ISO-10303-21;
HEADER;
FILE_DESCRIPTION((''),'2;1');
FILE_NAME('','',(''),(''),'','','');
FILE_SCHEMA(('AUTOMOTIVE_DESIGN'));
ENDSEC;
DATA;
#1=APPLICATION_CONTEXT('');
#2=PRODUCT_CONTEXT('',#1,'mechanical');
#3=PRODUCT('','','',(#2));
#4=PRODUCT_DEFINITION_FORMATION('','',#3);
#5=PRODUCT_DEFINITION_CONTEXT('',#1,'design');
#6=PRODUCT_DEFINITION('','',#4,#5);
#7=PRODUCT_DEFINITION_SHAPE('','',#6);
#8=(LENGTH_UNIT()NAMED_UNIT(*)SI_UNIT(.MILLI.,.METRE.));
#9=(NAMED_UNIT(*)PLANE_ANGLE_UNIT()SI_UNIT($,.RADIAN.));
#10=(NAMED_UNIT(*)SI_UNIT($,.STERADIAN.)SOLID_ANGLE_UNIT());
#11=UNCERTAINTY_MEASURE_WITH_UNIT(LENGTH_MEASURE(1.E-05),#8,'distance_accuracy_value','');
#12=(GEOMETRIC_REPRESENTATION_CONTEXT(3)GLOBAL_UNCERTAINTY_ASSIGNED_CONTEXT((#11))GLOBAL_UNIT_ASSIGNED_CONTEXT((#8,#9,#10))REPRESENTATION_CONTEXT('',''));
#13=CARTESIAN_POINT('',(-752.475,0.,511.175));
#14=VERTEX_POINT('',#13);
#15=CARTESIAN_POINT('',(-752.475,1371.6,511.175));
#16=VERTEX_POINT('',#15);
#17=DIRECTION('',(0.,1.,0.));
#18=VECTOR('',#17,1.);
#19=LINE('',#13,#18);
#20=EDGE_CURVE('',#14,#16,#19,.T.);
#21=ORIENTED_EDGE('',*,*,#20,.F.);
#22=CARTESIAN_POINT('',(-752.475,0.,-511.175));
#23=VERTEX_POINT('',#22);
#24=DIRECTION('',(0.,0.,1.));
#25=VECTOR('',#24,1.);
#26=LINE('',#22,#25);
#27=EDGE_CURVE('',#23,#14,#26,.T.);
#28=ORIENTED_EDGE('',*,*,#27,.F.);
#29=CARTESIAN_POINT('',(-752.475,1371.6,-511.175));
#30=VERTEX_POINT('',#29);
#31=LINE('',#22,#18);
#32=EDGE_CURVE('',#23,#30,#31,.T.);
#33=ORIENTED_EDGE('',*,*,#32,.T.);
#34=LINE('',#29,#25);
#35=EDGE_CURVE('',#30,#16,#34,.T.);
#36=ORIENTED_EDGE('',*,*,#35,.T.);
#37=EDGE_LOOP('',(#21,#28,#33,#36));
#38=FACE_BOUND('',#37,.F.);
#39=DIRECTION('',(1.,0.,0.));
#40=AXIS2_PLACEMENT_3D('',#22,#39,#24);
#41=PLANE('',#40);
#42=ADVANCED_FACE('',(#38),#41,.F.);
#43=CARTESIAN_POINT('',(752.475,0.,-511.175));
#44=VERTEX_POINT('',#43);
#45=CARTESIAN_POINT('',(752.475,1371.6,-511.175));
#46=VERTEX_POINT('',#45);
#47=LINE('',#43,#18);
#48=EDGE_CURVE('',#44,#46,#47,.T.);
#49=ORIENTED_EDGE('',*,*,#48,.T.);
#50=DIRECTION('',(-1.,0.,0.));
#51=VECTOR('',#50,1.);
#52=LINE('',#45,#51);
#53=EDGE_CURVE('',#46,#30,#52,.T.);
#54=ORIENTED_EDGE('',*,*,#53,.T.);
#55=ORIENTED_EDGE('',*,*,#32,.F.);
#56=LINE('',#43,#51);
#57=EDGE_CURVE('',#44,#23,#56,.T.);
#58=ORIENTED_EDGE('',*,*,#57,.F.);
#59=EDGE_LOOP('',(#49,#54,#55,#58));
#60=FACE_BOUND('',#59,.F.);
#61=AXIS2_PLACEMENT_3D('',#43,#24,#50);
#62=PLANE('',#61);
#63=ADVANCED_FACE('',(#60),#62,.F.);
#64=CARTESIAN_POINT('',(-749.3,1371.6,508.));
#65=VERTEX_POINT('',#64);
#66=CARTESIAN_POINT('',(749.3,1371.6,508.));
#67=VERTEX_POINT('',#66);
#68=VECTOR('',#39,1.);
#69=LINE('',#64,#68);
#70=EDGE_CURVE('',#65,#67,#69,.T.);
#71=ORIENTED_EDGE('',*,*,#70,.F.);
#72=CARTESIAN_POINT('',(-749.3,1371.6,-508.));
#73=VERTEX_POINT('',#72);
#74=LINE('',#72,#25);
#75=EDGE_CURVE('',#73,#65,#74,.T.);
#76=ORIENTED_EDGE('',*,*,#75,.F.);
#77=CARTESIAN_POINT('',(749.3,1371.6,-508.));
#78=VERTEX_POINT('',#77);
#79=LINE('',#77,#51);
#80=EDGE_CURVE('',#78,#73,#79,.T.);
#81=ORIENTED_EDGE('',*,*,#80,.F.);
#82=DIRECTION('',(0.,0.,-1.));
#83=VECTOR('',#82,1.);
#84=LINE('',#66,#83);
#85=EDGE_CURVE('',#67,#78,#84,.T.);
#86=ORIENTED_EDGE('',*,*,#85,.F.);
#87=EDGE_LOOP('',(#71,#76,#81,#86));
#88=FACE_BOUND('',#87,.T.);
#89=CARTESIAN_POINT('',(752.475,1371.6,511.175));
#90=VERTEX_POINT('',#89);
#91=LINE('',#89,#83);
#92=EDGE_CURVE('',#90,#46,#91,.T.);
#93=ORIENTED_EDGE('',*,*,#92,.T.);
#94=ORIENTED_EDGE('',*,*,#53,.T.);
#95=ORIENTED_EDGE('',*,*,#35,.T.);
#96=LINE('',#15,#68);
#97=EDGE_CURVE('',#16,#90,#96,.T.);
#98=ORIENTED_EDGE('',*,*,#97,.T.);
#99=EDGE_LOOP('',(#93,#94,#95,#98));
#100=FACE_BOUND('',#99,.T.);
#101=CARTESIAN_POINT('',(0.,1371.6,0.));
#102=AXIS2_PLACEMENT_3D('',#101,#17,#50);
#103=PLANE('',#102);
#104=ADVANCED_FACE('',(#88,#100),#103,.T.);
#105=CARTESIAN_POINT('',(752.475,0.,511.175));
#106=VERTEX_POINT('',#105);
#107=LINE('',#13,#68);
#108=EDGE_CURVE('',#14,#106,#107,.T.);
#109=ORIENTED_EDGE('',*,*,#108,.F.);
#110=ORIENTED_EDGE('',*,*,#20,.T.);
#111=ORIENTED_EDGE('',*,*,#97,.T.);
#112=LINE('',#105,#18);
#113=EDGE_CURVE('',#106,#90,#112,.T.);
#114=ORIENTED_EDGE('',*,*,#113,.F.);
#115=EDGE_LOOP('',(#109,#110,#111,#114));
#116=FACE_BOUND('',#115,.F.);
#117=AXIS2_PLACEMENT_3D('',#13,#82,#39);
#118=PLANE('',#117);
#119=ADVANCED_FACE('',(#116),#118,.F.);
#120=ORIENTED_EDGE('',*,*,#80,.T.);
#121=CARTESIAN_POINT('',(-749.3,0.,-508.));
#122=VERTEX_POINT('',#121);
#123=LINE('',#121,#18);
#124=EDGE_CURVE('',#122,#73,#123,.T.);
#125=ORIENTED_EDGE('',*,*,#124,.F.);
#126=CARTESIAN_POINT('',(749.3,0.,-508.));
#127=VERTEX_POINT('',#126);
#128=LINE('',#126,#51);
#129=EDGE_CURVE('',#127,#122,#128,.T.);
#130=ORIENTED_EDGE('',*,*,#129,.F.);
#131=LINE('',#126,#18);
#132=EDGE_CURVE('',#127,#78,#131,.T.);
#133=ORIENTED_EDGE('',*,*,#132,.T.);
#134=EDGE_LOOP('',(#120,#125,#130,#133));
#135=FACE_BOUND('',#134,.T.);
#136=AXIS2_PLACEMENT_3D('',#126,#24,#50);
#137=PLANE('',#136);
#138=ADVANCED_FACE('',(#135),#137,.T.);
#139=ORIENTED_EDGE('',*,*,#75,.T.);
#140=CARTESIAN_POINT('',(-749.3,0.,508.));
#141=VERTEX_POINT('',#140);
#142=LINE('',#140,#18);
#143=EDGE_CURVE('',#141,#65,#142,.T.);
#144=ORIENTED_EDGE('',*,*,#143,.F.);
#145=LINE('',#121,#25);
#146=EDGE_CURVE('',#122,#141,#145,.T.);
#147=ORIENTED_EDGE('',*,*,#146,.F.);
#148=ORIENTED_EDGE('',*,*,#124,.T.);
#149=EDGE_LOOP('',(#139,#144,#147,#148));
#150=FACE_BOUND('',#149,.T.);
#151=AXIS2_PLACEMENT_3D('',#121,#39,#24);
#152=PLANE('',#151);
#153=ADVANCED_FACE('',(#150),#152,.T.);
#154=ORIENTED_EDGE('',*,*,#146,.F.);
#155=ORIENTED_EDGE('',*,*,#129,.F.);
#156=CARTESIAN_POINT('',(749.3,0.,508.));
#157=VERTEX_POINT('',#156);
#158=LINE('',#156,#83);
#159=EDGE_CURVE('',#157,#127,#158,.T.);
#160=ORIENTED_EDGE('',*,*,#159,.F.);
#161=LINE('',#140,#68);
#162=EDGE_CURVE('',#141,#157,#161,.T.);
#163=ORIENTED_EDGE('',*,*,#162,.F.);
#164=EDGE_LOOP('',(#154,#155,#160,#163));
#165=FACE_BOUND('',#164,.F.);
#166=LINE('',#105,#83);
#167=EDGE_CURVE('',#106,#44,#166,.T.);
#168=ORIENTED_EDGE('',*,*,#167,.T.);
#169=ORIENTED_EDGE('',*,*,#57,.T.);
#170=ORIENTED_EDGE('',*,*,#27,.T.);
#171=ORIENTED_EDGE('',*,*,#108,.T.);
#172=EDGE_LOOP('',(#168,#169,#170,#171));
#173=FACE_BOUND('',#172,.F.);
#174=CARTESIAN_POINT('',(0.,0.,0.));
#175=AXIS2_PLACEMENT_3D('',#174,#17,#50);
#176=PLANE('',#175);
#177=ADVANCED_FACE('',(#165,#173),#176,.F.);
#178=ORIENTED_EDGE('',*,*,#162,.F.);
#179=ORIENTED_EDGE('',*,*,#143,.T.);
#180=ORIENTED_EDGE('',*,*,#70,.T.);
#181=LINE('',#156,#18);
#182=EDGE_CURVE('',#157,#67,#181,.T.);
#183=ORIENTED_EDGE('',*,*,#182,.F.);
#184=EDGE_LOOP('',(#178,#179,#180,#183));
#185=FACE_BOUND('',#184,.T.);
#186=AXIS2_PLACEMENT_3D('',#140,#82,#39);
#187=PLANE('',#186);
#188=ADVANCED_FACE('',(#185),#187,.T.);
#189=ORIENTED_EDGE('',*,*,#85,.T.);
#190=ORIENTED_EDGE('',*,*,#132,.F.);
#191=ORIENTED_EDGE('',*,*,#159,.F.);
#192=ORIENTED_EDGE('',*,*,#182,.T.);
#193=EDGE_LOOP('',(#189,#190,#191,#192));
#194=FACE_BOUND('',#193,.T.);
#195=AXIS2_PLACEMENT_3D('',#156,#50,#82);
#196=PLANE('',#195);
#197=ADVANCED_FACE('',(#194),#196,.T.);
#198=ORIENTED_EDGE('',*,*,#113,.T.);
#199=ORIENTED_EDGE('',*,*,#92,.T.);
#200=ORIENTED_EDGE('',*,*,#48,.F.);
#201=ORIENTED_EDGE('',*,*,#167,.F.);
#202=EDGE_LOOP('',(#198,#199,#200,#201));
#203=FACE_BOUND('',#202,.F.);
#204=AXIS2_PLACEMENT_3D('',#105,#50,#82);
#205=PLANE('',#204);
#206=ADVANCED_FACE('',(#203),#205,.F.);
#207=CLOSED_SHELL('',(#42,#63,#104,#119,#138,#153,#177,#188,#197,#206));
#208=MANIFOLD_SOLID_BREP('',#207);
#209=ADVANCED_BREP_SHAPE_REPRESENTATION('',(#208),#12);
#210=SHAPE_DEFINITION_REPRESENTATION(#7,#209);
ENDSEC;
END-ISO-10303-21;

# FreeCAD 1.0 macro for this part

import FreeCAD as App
import Part
import Sketcher
Q = App.Units.Quantity


def add_polygon(sketch, points):
    """Adds a closed chain of lines whose ends are joined by coincident constraints."""
    first, n = sketch.GeometryCount, len(points)
    for a, b in zip(points, points[1:] + points[:1]):
        sketch.addGeometry(Part.LineSegment(App.Vector(*a, 0), App.Vector(*b, 0)), False)
    for i in range(n):
        sketch.addConstraint(Sketcher.Constraint("Coincident", first + i, 2, first + (i + 1) % n, 1))

doc = App.newDocument("Part")
body = doc.addObject("PartDesign::Body", "Body")

sketch1 = doc.addObject("Sketcher::SketchObject", "Sketch")
body.addObject(sketch1)
sketch1.AttachmentSupport = (doc.XZ_Plane, [""])
sketch1.MapMode = "FlatFace"
add_polygon(sketch1, [(-752, 511), (752, 511), (752, -511), (-752, -511)])
add_polygon(sketch1, [(749, -508), (749, 508), (-749, 508), (-749, -508)])
sketch1.addConstraint(Sketcher.Constraint("Horizontal", 0))
sketch1.addConstraint(Sketcher.Constraint("Vertical", 1))
sketch1.addConstraint(Sketcher.Constraint("Horizontal", 2))
sketch1.addConstraint(Sketcher.Constraint("Vertical", 3))
sketch1.addConstraint(Sketcher.Constraint("Vertical", 4))
sketch1.addConstraint(Sketcher.Constraint("Horizontal", 5))
sketch1.addConstraint(Sketcher.Constraint("Vertical", 6))
sketch1.addConstraint(Sketcher.Constraint("Horizontal", 7))
sketch1.addConstraint(Sketcher.Constraint("Symmetric", 0, 2, 2, 2, -1, 1))
sketch1.addConstraint(Sketcher.Constraint("Symmetric", 4, 2, 6, 2, -1, 1))
sketch1.addConstraint(Sketcher.Constraint("DistanceX", 5, 2, 5, 1, Q("59 in")))
sketch1.addConstraint(Sketcher.Constraint("DistanceY", 4, 1, 4, 2, Q("40 in")))
sketch1.addConstraint(Sketcher.Constraint("DistanceX", 4, 2, 0, 2, Q("0.125 in")))
sketch1.addConstraint(Sketcher.Constraint("DistanceY", 4, 2, 0, 2, Q("0.125 in")))
pad1 = doc.addObject("PartDesign::Pad", "Pad")
body.addObject(pad1)
pad1.Profile = sketch1
pad1.Length = Q("54 in")
pad1.Reversed = True

doc.recompute()
